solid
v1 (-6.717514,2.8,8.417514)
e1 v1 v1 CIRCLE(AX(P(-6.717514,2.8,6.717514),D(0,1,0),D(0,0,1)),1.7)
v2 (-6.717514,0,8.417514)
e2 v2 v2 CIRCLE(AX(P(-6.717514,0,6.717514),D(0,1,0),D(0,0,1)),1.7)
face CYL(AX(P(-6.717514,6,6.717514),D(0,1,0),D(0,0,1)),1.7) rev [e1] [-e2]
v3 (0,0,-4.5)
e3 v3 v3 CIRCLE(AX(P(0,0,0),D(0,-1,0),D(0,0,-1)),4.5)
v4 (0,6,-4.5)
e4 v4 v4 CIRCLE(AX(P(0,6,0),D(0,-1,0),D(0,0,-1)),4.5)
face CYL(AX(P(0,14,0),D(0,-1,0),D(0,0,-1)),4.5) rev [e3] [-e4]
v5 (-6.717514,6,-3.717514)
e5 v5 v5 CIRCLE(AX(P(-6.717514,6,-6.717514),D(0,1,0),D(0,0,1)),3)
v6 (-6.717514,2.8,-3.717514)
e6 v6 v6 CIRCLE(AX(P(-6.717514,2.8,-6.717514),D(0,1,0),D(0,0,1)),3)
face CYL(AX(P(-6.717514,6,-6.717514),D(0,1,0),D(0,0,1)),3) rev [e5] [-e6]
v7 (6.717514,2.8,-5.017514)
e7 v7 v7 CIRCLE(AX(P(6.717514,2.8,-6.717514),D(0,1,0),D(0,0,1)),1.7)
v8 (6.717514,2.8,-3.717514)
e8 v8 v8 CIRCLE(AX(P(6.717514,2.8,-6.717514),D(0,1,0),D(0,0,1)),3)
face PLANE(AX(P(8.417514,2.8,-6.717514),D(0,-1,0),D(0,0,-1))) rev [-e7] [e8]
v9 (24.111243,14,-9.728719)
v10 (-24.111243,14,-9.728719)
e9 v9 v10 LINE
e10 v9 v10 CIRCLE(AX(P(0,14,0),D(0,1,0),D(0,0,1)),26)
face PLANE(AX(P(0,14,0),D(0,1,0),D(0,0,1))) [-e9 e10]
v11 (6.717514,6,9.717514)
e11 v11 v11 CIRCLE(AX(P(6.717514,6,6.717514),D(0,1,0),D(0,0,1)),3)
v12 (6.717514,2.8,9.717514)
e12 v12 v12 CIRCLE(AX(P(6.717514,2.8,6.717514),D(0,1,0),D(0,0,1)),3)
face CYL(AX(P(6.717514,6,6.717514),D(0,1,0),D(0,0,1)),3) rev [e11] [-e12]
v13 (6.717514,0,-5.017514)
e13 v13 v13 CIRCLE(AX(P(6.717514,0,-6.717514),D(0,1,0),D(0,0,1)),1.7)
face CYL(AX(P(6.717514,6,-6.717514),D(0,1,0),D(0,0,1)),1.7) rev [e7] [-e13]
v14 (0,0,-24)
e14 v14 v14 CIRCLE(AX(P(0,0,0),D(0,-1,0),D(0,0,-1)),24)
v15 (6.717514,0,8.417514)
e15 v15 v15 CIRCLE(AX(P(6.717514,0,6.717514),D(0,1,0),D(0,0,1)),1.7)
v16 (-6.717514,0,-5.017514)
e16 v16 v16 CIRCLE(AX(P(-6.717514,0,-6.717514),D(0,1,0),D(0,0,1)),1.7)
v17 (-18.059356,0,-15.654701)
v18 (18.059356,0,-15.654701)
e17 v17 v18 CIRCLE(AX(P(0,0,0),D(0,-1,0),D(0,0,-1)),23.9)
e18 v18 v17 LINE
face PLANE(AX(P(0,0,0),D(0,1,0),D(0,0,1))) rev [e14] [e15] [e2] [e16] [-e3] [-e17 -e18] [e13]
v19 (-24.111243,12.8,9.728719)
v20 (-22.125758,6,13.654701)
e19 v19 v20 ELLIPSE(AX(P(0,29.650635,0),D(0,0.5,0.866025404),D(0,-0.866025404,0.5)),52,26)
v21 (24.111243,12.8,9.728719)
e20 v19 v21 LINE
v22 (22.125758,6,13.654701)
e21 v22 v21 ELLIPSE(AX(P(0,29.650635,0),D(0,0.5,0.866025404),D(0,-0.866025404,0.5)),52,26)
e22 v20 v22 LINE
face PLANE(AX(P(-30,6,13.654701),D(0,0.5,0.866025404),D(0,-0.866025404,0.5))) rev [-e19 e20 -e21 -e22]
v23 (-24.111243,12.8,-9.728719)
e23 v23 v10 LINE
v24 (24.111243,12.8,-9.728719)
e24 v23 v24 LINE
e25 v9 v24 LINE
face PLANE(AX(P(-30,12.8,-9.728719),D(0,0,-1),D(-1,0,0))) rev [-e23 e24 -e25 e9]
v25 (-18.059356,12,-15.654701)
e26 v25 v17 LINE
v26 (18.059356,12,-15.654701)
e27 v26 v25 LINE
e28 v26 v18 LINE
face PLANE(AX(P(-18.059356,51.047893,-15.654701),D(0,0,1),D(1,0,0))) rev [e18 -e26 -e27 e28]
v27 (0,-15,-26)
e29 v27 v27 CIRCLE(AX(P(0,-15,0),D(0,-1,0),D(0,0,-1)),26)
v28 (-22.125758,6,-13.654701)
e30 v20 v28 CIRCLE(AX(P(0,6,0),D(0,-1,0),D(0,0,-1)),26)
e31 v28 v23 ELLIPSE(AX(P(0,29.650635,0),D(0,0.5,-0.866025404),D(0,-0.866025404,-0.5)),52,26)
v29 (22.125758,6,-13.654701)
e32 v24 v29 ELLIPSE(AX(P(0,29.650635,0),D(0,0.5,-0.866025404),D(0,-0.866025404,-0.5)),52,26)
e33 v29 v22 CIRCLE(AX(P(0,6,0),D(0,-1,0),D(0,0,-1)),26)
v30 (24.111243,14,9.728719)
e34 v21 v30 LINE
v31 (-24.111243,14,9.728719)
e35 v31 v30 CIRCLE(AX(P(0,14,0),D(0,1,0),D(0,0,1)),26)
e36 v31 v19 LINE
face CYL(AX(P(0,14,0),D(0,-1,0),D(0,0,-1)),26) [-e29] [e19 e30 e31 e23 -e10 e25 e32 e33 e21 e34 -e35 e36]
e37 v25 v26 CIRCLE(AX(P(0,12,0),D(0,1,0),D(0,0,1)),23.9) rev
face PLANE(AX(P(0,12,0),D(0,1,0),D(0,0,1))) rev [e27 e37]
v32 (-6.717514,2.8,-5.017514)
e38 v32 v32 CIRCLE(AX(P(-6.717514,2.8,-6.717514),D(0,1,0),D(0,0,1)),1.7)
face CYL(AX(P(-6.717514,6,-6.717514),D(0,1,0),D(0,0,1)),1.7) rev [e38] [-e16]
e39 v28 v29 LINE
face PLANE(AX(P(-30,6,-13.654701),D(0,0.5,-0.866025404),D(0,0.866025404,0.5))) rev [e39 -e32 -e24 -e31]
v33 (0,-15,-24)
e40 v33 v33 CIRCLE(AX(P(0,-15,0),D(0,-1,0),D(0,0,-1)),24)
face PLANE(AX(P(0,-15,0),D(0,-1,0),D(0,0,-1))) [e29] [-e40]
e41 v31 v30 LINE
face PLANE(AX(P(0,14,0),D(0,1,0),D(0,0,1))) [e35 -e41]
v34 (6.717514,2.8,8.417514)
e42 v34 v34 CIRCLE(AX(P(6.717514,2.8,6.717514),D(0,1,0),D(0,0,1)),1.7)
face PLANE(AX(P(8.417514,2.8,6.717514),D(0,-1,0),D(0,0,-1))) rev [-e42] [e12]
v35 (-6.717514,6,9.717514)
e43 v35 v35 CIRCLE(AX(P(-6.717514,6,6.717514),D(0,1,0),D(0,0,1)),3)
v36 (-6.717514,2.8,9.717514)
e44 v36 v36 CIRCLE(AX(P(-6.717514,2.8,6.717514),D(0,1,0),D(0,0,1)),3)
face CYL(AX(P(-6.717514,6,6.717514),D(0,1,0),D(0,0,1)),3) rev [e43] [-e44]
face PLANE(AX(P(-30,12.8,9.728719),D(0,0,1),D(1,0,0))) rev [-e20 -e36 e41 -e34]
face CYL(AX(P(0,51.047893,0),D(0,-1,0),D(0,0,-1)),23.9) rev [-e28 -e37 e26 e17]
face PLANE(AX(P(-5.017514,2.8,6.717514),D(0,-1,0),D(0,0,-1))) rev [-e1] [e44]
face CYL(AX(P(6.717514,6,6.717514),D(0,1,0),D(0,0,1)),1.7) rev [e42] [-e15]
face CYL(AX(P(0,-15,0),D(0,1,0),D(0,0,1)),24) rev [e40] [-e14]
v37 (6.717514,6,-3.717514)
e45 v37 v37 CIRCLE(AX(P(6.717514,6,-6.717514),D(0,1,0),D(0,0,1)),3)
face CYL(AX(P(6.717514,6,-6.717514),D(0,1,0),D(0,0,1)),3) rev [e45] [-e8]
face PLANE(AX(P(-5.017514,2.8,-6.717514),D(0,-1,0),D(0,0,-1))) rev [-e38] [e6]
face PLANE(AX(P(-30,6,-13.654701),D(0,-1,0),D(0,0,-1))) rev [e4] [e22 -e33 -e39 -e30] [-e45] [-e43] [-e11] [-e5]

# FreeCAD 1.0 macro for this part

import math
import FreeCAD as App
import Part
import Sketcher

V = App.Vector
Q = App.Units.Quantity


def add_polygon(sketch, points):
    """Adds a closed chain of lines whose ends are joined by coincident constraints."""
    first, n = sketch.GeometryCount, len(points)
    for a, b in zip(points, points[1:] + points[:1]):
        sketch.addGeometry(Part.LineSegment(App.Vector(*a, 0), App.Vector(*b, 0)), False)
    for i in range(n):
        sketch.addConstraint(Sketcher.Constraint("Coincident", first + i, 2, first + (i + 1) % n, 1))

doc = App.newDocument("Part")
params = doc.addObject("Spreadsheet::Sheet", "Params")
for row, (alias, value) in enumerate([
    ("sketch1_diameter", "52 mm"),
    ("pad1_length", "14 mm"),
    ("sketch2_width", "1.2 mm"),
    ("pocket1_length", "60 mm"),
    ("sketch3_diameter", "9 mm"),
    ("sketch4_radius", "23.9 mm"),
    ("pocket3_length", "12 mm"),
    ("sketch5_diameter", "3.4 mm"),
    ("hole_diameter", "3.4 mm"),
    ("hole_cbore_diameter", "6 mm"),
    ("hole_cbore_depth", "3.2 mm"),
    ("sketch6_diameter", "52 mm"),
    ("sketch6_diameter2", "48 mm"),
    ("pad2_length", "15 mm"),
], start=1):
    params.set(f"A{row}", alias)
    params.set(f"B{row}", "=" + value)
    params.setAlias(f"B{row}", alias)

body = doc.addObject("PartDesign::Body", "Body")

# Sketch on XZ plane
sketch1 = body.newObject("Sketcher::SketchObject", "Sketch")
sketch1.AttachmentSupport = (doc.getObject("XZ_Plane"), [""])
sketch1.MapMode = "FlatFace"
sketch1.addGeometry(Part.Circle(V(0, 0, 0), V(0, 0, 1), 26), False)
sketch1.addConstraint([
    Sketcher.Constraint("Coincident", 0, 3, -1, 1),
    Sketcher.Constraint("Diameter", 0, Q("52 mm")),
])
sketch1.setExpression("Constraints[1]", "Params.sketch1_diameter")
pad1 = body.newObject("PartDesign::Pad", "Pad")
pad1.Profile = sketch1
pad1.setExpression("Length", "Params.pad1_length")
pad1.Reversed = True

# Sketch on YZ plane
sketch2 = body.newObject("Sketcher::SketchObject", "Sketch001")
sketch2.AttachmentSupport = (doc.getObject("YZ_Plane"), [""])
sketch2.MapMode = "FlatFace"
add_polygon(sketch2, [(6, 13.7), (6, -13.7), (12.8, -9.7), (14, -9.7), (14, 9.7), (12.8, 9.7)])  # lines 0-5
sketch2.addConstraint([
    Sketcher.Constraint("Vertical", 0),
    Sketcher.Constraint("Horizontal", 2),
    Sketcher.Constraint("Vertical", 3),
    Sketcher.Constraint("Horizontal", 4),
    Sketcher.Constraint("Symmetric", 1, 2, 4, 2, -1),
    Sketcher.Constraint("Equal", 1, 5),
    Sketcher.Constraint("Angle", 1, Q("30 deg")),
    Sketcher.Constraint("DistanceX", 2, 1, 2, 2, Q("1.2 mm")),
    Sketcher.Constraint("DistanceX", -1, 1, 0, 2, Q("6 mm")),
    Sketcher.Constraint("DistanceX", -1, 1, 2, 2, Q("14 mm")),
    Sketcher.Constraint("DistanceY", 0, 2, 0, 1, Q("27.309401 mm")),
])
sketch2.setExpression("Constraints[13]", "Params.sketch2_width")
pocket1 = body.newObject("PartDesign::Pocket", "Pocket")
pocket1.Profile = sketch2
pocket1.setExpression("Length", "Params.pocket1_length")
pocket1.Midplane = True

# Sketch on XZ plane
sketch3 = body.newObject("Sketcher::SketchObject", "Sketch002")
sketch3.AttachmentSupport = (doc.getObject("XZ_Plane"), [""])
sketch3.MapMode = "FlatFace"
sketch3.addGeometry(Part.Circle(V(0, 0, 0), V(0, 0, 1), 4.5), False)
sketch3.addConstraint([
    Sketcher.Constraint("Coincident", 0, 3, -1, 1),
    Sketcher.Constraint("Diameter", 0, Q("9 mm")),
])
sketch3.setExpression("Constraints[1]", "Params.sketch3_diameter")
pocket2 = body.newObject("PartDesign::Pocket", "Pocket001")
pocket2.Profile = sketch3
pocket2.Type = "ThroughAll"

# Sketch on XZ plane
sketch4 = body.newObject("Sketcher::SketchObject", "Sketch003")
sketch4.AttachmentSupport = (doc.getObject("XZ_Plane"), [""])
sketch4.MapMode = "FlatFace"
sketch4.addGeometry([
    Part.LineSegment(V(18, -16, 0), V(-18, -16, 0)),
    Part.ArcOfCircle(Part.Circle(V(0, 0, 0), V(0, 0, 1), 24), math.radians(-139), math.radians(-41)),
], False)
sketch4.addConstraint([
    Sketcher.Constraint("Coincident", 0, 1, 1, 2),
    Sketcher.Constraint("Coincident", 1, 1, 0, 2),
    Sketcher.Constraint("Horizontal", 0),
    Sketcher.Constraint("Coincident", 1, 3, -1, 1),
    Sketcher.Constraint("Radius", 1, Q("23.9 mm")),
    Sketcher.Constraint("DistanceY", 0, 1, -1, 1, Q("15.654701 mm")),
])
sketch4.setExpression("Constraints[4]", "Params.sketch4_radius")
pocket3 = body.newObject("PartDesign::Pocket", "Pocket002")
pocket3.Profile = sketch4
pocket3.setExpression("Length", "Params.pocket3_length")

# Sketch on XZ plane
sketch5 = body.newObject("Sketcher::SketchObject", "Sketch004")
sketch5.AttachmentSupport = (doc.getObject("XZ_Plane"), [""])
sketch5.MapMode = "FlatFace"
sketch5.AttachmentOffset = App.Placement(V(0, 0, -6), App.Rotation())
sketch5.addGeometry([
    Part.Circle(V(-6.7, -6.7, 0), V(0, 0, 1), 1.7),
    Part.Circle(V(6.7, -6.7, 0), V(0, 0, 1), 1.7),
    Part.Circle(V(6.7, 6.7, 0), V(0, 0, 1), 1.7),
    Part.Circle(V(-6.7, 6.7, 0), V(0, 0, 1), 1.7),
], False)
sketch5.addConstraint([
    Sketcher.Constraint("Equal", 0, 1),
    Sketcher.Constraint("Equal", 1, 2),
    Sketcher.Constraint("Equal", 2, 3),
    Sketcher.Constraint("Symmetric", 0, 3, 2, 3, -1, 1),
    Sketcher.Constraint("Symmetric", 1, 3, 3, 3, -1, 1),
    Sketcher.Constraint("Symmetric", 0, 3, 1, 3, -2),
    Sketcher.Constraint("Diameter", 0, Q("3.4 mm")),
    Sketcher.Constraint("DistanceX", 0, 3, 1, 3, Q("13.435029 mm")),
    Sketcher.Constraint("DistanceY", 1, 3, 2, 3, Q("13.435029 mm")),
])
sketch5.setExpression("Constraints[6]", "Params.sketch5_diameter")
doc.recompute()
hole = body.newObject("PartDesign::Hole", "Hole")
hole.Profile = sketch5
hole.ThreadType = "None"
hole.setExpression("Diameter", "Params.hole_diameter")
hole.DepthType = "ThroughAll"
hole.HoleCutType = "Counterbore"
hole.setExpression("HoleCutDiameter", "Params.hole_cbore_diameter")
hole.setExpression("HoleCutDepth", "Params.hole_cbore_depth")
hole.Reversed = True

# Sketch on XZ plane
sketch6 = body.newObject("Sketcher::SketchObject", "Sketch005")
sketch6.AttachmentSupport = (doc.getObject("XZ_Plane"), [""])
sketch6.MapMode = "FlatFace"
sketch6.AttachmentOffset = App.Placement(V(0, 0, 15), App.Rotation())
sketch6.addGeometry([
    Part.Circle(V(0, 0, 0), V(0, 0, 1), 26),
    Part.Circle(V(0, 0, 0), V(0, 0, 1), 24),
], False)
sketch6.addConstraint([
    Sketcher.Constraint("Coincident", 0, 3, -1, 1),
    Sketcher.Constraint("Coincident", 1, 3, -1, 1),
    Sketcher.Constraint("Diameter", 0, Q("52 mm")),
    Sketcher.Constraint("Diameter", 1, Q("48 mm")),
])
sketch6.setExpression("Constraints[2]", "Params.sketch6_diameter")
sketch6.setExpression("Constraints[3]", "Params.sketch6_diameter2")
pad2 = body.newObject("PartDesign::Pad", "Pad001")
pad2.Profile = sketch6
pad2.setExpression("Length", "Params.pad2_length")
pad2.Reversed = True

doc.recompute()
